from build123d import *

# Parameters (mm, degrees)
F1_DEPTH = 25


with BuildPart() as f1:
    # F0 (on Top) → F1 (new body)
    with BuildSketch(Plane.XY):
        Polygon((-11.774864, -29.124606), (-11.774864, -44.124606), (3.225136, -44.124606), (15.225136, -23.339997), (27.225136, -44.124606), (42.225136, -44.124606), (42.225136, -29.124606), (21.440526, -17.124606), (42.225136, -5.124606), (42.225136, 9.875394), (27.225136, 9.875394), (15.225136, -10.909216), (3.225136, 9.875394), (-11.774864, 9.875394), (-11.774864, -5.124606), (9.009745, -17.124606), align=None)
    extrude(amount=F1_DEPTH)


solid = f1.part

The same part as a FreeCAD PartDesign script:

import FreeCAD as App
import Part
import Sketcher
from FreeCAD import Vector
Q = App.Units.Quantity

doc = App.newDocument("Part")
body = doc.addObject("PartDesign::Body", "Body")

# Sketch on XY plane
sketch1 = body.newObject("Sketcher::SketchObject", "Sketch")
sketch1.AttachmentSupport = (doc.getObject("XY_Plane"), [""])
sketch1.MapMode = "FlatFace"
sketch1.addGeometry(Part.LineSegment(Vector(-12, -29, 0), Vector(-12, -44, 0)), False)
sketch1.addGeometry(Part.LineSegment(Vector(-12, -44, 0), Vector(3, -44, 0)), False)
sketch1.addGeometry(Part.LineSegment(Vector(3, -44, 0), Vector(15, -23, 0)), False)
sketch1.addGeometry(Part.LineSegment(Vector(15, -23, 0), Vector(27, -44, 0)), False)
sketch1.addGeometry(Part.LineSegment(Vector(27, -44, 0), Vector(42, -44, 0)), False)
sketch1.addGeometry(Part.LineSegment(Vector(42, -44, 0), Vector(42, -29, 0)), False)
sketch1.addGeometry(Part.LineSegment(Vector(42, -29, 0), Vector(21, -17, 0)), False)
sketch1.addGeometry(Part.LineSegment(Vector(21, -17, 0), Vector(42, -5, 0)), False)
sketch1.addGeometry(Part.LineSegment(Vector(42, -5, 0), Vector(42, 10, 0)), False)
sketch1.addGeometry(Part.LineSegment(Vector(42, 10, 0), Vector(27, 10, 0)), False)
sketch1.addGeometry(Part.LineSegment(Vector(27, 10, 0), Vector(15, -11, 0)), False)
sketch1.addGeometry(Part.LineSegment(Vector(15, -11, 0), Vector(3, 10, 0)), False)
sketch1.addGeometry(Part.LineSegment(Vector(3, 10, 0), Vector(-12, 10, 0)), False)
sketch1.addGeometry(Part.LineSegment(Vector(-12, 10, 0), Vector(-12, -5, 0)), False)
sketch1.addGeometry(Part.LineSegment(Vector(-12, -5, 0), Vector(9, -17, 0)), False)
sketch1.addGeometry(Part.LineSegment(Vector(9, -17, 0), Vector(-12, -29, 0)), False)
sketch1.addConstraint(Sketcher.Constraint("Coincident", 0, 2, 1, 1))
sketch1.addConstraint(Sketcher.Constraint("Coincident", 1, 2, 2, 1))
sketch1.addConstraint(Sketcher.Constraint("Coincident", 2, 2, 3, 1))
sketch1.addConstraint(Sketcher.Constraint("Coincident", 3, 2, 4, 1))
sketch1.addConstraint(Sketcher.Constraint("Coincident", 4, 2, 5, 1))
sketch1.addConstraint(Sketcher.Constraint("Coincident", 5, 2, 6, 1))
sketch1.addConstraint(Sketcher.Constraint("Coincident", 6, 2, 7, 1))
sketch1.addConstraint(Sketcher.Constraint("Coincident", 7, 2, 8, 1))
sketch1.addConstraint(Sketcher.Constraint("Coincident", 8, 2, 9, 1))
sketch1.addConstraint(Sketcher.Constraint("Coincident", 9, 2, 10, 1))
sketch1.addConstraint(Sketcher.Constraint("Coincident", 10, 2, 11, 1))
sketch1.addConstraint(Sketcher.Constraint("Coincident", 11, 2, 12, 1))
sketch1.addConstraint(Sketcher.Constraint("Coincident", 12, 2, 13, 1))
sketch1.addConstraint(Sketcher.Constraint("Coincident", 13, 2, 14, 1))
sketch1.addConstraint(Sketcher.Constraint("Coincident", 14, 2, 15, 1))
sketch1.addConstraint(Sketcher.Constraint("Coincident", 15, 2, 0, 1))
sketch1.addConstraint(Sketcher.Constraint("Vertical", 0))
sketch1.addConstraint(Sketcher.Constraint("Horizontal", 1))
sketch1.addConstraint(Sketcher.Constraint("Horizontal", 4))
sketch1.addConstraint(Sketcher.Constraint("Vertical", 5))
sketch1.addConstraint(Sketcher.Constraint("Vertical", 8))
sketch1.addConstraint(Sketcher.Constraint("Horizontal", 9))
sketch1.addConstraint(Sketcher.Constraint("Horizontal", 12))
sketch1.addConstraint(Sketcher.Constraint("Vertical", 13))
sketch1.addConstraint(Sketcher.Constraint("Perpendicular", 2, 6))
sketch1.addConstraint(Sketcher.Constraint("Perpendicular", 3, 7))
sketch1.addConstraint(Sketcher.Constraint("Perpendicular", 6, 10))
sketch1.addConstraint(Sketcher.Constraint("Perpendicular", 7, 11))
sketch1.addConstraint(Sketcher.Constraint("Perpendicular", 10, 14))
sketch1.addConstraint(Sketcher.Constraint("Perpendicular", 11, 15))
sketch1.addConstraint(Sketcher.Constraint("Horizontal", 1, 2, 3, 2))
sketch1.addConstraint(Sketcher.Constraint("Horizontal", 9, 2, 11, 2))
sketch1.addConstraint(Sketcher.Constraint("Horizontal", 7, 2, 13, 2))
sketch1.addConstraint(Sketcher.Constraint("Horizontal", 6, 2, 14, 2))
sketch1.addConstraint(Sketcher.Constraint("Horizontal", 5, 2, 15, 2))
sketch1.addConstraint(Sketcher.Constraint("Vertical", 5, 2, 7, 2))
sketch1.addConstraint(Sketcher.Constraint("Vertical", 3, 2, 9, 2))
sketch1.addConstraint(Sketcher.Constraint("Vertical", 2, 2, 10, 2))
sketch1.addConstraint(Sketcher.Constraint("Vertical", 1, 2, 11, 2))
sketch1.addConstraint(Sketcher.Constraint("Equal", 1, 4))
sketch1.addConstraint(Sketcher.Constraint("Equal", 12, 0))
sketch1.addConstraint(Sketcher.Constraint("Equal", 5, 8))
sketch1.addConstraint(Sketcher.Constraint("Equal", 3, 6))
sketch1.addConstraint(Sketcher.Constraint("DistanceX", 1, 1, 1, 2, Q("15 mm")))
sketch1.addConstraint(Sketcher.Constraint("Angle", 2, Q("59.999999 deg")))
sketch1.addConstraint(Sketcher.Constraint("Distance", 2, Q("23.999999 mm")))
sketch1.addConstraint(Sketcher.Constraint("DistanceX", 0, 2, -1, 1, Q("11.774864 mm")))
sketch1.addConstraint(Sketcher.Constraint("DistanceY", 0, 2, -1, 1, Q("44.124606 mm")))
pad1 = body.newObject("PartDesign::Pad", "Pad")
pad1.Profile = sketch1
pad1.Length = 25

doc.recompute()
